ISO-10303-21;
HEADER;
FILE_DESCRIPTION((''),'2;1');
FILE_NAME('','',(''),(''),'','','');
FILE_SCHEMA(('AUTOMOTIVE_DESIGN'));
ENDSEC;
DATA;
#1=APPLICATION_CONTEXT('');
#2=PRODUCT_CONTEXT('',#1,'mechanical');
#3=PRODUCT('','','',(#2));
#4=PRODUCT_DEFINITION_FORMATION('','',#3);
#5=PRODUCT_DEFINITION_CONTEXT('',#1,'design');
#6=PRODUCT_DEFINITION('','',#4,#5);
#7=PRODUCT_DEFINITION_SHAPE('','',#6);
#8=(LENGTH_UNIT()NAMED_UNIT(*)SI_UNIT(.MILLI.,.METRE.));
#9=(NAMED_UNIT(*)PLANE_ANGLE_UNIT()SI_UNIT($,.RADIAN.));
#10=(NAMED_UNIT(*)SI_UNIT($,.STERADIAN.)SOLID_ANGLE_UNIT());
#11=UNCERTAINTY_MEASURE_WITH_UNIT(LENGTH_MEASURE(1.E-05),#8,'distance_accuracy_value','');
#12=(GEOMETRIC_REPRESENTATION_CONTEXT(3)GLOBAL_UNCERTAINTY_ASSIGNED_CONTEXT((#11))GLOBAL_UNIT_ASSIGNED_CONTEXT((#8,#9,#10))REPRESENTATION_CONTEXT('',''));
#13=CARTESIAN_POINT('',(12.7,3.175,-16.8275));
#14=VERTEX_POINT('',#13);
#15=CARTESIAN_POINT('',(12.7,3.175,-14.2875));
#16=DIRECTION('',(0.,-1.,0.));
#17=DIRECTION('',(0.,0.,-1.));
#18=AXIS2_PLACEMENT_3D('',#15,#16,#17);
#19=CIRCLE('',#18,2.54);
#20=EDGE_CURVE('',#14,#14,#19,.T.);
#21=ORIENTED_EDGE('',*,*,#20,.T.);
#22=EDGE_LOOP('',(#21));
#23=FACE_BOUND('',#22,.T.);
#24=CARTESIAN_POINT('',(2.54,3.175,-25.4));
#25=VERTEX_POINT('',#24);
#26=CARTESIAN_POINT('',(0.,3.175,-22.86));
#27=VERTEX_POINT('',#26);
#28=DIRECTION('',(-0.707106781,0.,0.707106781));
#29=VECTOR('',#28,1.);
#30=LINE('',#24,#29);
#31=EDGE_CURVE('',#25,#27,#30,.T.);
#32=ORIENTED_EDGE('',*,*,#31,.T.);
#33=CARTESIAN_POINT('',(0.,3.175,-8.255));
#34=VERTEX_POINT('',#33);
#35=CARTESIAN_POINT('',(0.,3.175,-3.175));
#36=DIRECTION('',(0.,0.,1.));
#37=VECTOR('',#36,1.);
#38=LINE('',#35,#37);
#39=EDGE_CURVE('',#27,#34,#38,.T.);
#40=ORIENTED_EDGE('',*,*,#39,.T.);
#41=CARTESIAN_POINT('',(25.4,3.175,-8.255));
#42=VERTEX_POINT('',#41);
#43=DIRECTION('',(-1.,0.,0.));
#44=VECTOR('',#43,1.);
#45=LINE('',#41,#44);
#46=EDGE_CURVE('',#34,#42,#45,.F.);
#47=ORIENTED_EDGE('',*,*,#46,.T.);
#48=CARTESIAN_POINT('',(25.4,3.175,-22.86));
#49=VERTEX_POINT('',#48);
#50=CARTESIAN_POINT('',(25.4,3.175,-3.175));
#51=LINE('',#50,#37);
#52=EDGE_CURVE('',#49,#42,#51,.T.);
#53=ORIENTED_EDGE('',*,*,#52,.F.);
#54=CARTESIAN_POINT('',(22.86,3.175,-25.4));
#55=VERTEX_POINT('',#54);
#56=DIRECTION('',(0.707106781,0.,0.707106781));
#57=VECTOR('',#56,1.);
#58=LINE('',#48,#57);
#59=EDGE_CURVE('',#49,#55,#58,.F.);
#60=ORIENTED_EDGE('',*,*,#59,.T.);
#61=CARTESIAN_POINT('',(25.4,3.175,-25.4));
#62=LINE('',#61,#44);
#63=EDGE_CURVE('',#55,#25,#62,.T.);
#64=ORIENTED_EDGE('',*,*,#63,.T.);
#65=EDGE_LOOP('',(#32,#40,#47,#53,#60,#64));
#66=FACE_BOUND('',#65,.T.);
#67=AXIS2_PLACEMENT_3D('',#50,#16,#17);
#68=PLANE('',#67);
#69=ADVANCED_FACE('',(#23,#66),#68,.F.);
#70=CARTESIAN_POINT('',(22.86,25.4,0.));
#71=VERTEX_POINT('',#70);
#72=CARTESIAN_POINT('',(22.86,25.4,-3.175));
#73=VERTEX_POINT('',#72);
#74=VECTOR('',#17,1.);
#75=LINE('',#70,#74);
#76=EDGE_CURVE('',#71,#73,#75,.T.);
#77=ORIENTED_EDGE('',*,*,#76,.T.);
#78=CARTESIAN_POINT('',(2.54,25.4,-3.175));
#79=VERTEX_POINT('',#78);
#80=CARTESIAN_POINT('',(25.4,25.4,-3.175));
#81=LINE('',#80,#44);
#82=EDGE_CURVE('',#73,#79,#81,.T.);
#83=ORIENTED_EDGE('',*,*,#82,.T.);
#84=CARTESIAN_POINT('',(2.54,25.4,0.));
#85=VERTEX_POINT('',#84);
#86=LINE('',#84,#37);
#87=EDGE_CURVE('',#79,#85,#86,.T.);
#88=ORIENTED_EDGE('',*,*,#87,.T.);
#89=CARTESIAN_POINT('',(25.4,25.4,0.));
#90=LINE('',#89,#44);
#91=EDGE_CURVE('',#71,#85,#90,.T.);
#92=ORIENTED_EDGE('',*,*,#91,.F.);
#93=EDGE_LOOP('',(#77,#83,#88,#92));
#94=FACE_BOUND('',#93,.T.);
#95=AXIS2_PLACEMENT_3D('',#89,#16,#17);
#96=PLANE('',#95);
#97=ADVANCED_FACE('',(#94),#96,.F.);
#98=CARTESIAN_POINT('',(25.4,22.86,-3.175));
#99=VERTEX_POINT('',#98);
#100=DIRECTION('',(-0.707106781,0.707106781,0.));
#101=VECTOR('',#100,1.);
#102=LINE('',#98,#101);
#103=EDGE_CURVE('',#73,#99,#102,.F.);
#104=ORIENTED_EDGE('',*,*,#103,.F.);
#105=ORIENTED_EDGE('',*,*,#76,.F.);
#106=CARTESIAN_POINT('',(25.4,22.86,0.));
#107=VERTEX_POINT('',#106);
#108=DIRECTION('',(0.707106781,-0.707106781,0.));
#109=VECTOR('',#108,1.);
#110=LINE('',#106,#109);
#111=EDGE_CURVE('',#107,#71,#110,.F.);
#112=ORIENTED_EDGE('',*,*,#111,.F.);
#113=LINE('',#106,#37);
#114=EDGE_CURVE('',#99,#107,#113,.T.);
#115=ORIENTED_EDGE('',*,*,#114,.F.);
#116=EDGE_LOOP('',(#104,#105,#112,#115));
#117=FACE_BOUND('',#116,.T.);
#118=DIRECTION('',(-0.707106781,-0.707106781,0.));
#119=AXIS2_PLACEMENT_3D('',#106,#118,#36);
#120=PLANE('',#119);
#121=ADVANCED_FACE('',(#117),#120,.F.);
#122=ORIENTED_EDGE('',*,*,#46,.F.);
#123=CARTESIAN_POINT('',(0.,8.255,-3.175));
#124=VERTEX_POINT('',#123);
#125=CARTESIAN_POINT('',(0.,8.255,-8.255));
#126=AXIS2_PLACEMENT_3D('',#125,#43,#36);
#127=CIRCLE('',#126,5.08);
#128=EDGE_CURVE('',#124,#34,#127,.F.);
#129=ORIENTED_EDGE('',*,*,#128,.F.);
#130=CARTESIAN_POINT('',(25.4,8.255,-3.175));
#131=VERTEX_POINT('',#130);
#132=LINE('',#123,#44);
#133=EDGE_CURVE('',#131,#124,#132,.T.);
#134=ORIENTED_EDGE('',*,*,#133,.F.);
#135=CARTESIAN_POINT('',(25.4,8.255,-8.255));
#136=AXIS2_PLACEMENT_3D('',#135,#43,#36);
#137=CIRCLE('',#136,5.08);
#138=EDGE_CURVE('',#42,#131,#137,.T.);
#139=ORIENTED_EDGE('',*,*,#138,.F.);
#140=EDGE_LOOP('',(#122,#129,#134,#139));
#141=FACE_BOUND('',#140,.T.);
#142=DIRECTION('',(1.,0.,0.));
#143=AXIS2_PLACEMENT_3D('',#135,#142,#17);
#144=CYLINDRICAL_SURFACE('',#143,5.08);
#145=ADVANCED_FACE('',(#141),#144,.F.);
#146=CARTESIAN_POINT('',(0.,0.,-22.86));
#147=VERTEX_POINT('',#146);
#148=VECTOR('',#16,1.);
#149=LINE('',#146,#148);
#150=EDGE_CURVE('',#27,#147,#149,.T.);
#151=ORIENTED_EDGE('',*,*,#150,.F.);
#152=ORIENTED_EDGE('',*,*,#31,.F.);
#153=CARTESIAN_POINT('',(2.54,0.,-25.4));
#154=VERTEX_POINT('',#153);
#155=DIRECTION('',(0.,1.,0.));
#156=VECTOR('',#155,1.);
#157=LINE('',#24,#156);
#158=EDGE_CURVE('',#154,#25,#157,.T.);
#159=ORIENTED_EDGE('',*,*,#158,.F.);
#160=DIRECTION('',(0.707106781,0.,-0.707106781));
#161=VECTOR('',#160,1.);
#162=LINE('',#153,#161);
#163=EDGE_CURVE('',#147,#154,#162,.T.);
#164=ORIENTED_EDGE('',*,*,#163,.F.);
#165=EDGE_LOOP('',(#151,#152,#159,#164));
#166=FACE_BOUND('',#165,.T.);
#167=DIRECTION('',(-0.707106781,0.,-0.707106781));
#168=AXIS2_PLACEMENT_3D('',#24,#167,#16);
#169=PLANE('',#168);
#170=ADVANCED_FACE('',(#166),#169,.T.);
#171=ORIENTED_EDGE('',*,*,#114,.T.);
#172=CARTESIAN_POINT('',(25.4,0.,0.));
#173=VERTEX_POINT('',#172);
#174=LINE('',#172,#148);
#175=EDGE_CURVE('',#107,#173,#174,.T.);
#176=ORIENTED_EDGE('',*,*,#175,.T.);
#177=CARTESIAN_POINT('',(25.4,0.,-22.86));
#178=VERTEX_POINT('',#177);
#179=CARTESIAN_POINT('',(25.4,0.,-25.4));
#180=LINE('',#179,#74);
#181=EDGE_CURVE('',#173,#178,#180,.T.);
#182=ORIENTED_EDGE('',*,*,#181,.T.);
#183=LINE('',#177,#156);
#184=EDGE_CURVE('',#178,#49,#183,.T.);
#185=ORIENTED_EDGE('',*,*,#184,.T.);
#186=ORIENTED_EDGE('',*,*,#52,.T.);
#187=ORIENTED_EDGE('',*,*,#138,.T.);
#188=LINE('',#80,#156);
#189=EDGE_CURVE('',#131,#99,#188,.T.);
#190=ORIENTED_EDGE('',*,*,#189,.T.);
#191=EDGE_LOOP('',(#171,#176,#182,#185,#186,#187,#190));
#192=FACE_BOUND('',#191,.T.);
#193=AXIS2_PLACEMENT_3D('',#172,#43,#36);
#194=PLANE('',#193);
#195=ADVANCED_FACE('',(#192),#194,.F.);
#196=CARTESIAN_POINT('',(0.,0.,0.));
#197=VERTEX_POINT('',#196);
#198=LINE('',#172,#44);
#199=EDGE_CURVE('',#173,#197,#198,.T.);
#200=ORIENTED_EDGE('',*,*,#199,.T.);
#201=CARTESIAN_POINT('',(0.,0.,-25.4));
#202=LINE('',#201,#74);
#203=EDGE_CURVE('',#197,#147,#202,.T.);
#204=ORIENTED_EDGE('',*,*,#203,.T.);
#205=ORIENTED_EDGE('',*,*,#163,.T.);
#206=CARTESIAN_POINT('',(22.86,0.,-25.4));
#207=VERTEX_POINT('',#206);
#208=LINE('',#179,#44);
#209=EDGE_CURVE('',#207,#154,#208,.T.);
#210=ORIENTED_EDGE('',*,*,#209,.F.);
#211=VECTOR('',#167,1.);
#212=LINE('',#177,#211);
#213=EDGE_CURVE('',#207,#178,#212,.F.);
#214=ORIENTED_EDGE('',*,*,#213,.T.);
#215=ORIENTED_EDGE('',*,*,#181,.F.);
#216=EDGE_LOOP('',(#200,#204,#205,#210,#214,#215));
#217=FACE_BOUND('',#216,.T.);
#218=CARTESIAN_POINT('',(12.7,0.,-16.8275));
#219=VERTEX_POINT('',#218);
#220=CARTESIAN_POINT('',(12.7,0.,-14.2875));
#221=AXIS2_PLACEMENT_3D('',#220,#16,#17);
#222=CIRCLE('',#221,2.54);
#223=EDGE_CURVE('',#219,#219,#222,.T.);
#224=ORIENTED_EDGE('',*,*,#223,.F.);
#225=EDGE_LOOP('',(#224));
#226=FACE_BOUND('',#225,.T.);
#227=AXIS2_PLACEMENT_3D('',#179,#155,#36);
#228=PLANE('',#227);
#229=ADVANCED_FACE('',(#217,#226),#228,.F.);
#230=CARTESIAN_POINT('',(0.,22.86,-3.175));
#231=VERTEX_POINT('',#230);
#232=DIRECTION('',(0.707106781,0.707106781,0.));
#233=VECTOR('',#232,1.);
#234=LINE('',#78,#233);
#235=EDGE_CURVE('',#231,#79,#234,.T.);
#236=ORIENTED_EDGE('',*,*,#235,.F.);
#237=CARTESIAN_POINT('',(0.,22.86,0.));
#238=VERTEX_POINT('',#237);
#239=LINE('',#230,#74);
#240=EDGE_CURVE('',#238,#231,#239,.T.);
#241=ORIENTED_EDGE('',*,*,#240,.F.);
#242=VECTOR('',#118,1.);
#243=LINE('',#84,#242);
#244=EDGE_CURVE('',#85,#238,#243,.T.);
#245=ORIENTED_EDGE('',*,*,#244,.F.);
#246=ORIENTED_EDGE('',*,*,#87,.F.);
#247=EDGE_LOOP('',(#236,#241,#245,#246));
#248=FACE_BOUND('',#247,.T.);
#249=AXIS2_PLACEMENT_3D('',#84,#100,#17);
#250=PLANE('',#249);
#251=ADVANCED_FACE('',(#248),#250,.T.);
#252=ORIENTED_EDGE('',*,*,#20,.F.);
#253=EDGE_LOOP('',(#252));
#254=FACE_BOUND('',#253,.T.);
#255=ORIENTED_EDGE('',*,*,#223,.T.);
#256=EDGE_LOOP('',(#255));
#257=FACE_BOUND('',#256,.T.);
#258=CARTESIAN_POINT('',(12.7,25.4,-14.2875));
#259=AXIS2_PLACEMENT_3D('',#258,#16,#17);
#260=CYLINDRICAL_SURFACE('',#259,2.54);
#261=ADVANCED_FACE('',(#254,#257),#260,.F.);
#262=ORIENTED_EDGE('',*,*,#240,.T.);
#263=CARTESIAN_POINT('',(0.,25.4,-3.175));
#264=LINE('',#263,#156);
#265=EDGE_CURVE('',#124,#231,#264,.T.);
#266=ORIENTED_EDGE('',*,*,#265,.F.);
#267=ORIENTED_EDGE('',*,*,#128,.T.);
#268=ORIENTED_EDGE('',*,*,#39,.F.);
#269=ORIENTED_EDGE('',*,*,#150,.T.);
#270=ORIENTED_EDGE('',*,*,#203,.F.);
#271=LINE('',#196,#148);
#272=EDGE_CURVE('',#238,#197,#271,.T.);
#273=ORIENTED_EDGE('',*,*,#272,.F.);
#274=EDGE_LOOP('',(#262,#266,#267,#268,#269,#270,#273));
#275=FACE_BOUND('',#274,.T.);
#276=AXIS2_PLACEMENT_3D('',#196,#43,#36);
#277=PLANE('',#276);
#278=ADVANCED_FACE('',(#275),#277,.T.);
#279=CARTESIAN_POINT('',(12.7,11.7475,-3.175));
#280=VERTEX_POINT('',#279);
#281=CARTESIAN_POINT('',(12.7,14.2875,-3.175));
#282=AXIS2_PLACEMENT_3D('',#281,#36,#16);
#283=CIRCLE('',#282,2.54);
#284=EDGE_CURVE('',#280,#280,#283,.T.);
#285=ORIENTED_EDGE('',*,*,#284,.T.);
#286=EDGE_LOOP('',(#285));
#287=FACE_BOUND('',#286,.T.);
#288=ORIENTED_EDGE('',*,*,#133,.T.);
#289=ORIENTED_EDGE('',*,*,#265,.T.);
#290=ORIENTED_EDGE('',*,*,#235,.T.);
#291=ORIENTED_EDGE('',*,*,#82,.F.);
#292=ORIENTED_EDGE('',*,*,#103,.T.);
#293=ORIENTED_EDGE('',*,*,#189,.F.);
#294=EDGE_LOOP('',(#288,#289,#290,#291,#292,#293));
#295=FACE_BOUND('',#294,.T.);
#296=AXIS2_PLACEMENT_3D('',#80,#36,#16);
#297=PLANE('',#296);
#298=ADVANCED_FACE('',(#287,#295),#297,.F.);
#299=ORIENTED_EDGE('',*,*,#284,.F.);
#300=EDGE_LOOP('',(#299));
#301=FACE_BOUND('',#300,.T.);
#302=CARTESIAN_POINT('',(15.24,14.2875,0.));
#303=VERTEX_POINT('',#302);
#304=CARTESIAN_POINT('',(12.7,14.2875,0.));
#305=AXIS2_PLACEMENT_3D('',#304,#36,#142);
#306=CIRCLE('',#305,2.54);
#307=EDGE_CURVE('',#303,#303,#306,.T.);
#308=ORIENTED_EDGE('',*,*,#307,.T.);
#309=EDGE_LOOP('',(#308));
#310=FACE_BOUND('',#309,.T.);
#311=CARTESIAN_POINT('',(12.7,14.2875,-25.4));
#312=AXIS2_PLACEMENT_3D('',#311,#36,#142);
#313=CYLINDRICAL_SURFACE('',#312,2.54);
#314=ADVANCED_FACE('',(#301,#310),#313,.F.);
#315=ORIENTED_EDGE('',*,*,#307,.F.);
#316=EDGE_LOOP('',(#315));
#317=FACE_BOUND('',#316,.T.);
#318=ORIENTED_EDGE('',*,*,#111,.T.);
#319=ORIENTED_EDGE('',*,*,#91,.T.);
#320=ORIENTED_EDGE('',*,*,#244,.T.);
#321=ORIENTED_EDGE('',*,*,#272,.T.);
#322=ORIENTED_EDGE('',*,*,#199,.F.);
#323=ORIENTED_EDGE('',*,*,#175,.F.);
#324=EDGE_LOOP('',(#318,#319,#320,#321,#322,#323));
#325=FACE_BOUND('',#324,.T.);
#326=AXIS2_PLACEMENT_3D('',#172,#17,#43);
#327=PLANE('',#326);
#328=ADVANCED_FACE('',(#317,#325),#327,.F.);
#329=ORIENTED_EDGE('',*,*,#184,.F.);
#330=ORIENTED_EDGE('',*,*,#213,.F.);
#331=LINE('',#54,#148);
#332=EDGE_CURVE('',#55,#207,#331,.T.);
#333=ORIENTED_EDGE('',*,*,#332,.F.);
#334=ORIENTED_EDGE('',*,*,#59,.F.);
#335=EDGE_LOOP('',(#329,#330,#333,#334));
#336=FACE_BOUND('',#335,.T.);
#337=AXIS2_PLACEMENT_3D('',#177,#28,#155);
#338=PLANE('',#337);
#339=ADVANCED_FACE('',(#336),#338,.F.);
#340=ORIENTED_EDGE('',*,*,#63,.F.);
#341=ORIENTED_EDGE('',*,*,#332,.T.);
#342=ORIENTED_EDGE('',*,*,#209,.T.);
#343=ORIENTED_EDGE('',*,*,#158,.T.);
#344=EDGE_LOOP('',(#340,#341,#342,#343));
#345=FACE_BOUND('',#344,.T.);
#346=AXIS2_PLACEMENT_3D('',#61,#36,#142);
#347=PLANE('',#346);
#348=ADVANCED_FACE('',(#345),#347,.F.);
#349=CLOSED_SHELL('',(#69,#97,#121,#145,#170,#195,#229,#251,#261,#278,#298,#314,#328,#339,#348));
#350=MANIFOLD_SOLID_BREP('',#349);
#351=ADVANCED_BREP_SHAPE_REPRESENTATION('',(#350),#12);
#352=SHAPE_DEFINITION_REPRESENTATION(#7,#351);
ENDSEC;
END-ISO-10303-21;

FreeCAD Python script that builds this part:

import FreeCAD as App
import Part
import Sketcher
from FreeCAD import Vector
Q = App.Units.Quantity


def edges_at(feature, points):
    """Names of the edges that pass closest to the given points."""
    edges = feature.Shape.Edges
    near = lambda p: min(range(len(edges)), key=lambda i: edges[i].distToShape(Part.Vertex(*p))[0])
    return sorted({f"Edge{near(p) + 1}" for p in points})

doc = App.newDocument("Part")
params = doc.addObject("Spreadsheet::Sheet", "Params")
for row, (alias, value) in enumerate([
    ("sketch1_width", "1 in"),
    ("sketch1_width2", "0.125 in"),
    ("pad1_length", "1 in"),
    ("sketch2_diameter", "0.2 in"),
    ("sketch3_diameter", "0.2 in"),
    ("fillet_radius", "0.2 in"),
    ("chamfer_size", "0.1 in"),
], start=1):
    params.set(f"A{row}", alias)
    params.set(f"B{row}", "=" + value)
    params.setAlias(f"B{row}", alias)

body = doc.addObject("PartDesign::Body", "Body")

sketch1 = body.newObject("Sketcher::SketchObject", "Sketch")
sketch1.AttachmentSupport = (doc.getObject("YZ_Plane"), [""])
sketch1.MapMode = "FlatFace"
sketch1.addGeometry([
    Part.LineSegment(Vector(25.4, 0, 0), Vector(0, 0, 0)),
    Part.LineSegment(Vector(0, 0, 0), Vector(0, -25.4, 0)),
    Part.LineSegment(Vector(0, -25.4, 0), Vector(3.175, -25.4, 0)),
    Part.LineSegment(Vector(3.175, -25.4, 0), Vector(3.175, -3.175, 0)),
    Part.LineSegment(Vector(3.175, -3.175, 0), Vector(25.4, -3.175, 0)),
    Part.LineSegment(Vector(25.4, -3.175, 0), Vector(25.4, 0, 0)),
], False)
sketch1.addConstraint([
    Sketcher.Constraint("Coincident", 0, 2, 1, 1),
    Sketcher.Constraint("Coincident", 1, 2, 2, 1),
    Sketcher.Constraint("Coincident", 2, 2, 3, 1),
    Sketcher.Constraint("Coincident", 3, 2, 4, 1),
    Sketcher.Constraint("Coincident", 4, 2, 5, 1),
    Sketcher.Constraint("Coincident", 5, 2, 0, 1),
    Sketcher.Constraint("Horizontal", 0),
    Sketcher.Constraint("Vertical", 1),
    Sketcher.Constraint("Horizontal", 2),
    Sketcher.Constraint("Vertical", 3),
    Sketcher.Constraint("Horizontal", 4),
    Sketcher.Constraint("Vertical", 5),
    Sketcher.Constraint("Coincident", 0, 2, -1, 1),
    Sketcher.Constraint("Equal", 0, 1),
    Sketcher.Constraint("Equal", 4, 3),
    Sketcher.Constraint("DistanceX", 0, 2, 0, 1, Q("1 in")),
    Sketcher.Constraint("DistanceX", 2, 1, 2, 2, Q("0.125 in")),
])
sketch1.setExpression("Constraints[15]", "Params.sketch1_width")
sketch1.setExpression("Constraints[16]", "Params.sketch1_width2")
pad1 = body.newObject("PartDesign::Pad", "Pad")
pad1.Profile = sketch1
pad1.setExpression("Length", "Params.pad1_length")

sketch2 = body.newObject("Sketcher::SketchObject", "Sketch001")
sketch2.AttachmentSupport = (doc.getObject("XY_Plane"), [""])
sketch2.MapMode = "FlatFace"
sketch2.addGeometry(Part.Circle(Vector(12.7, 14.2875, 0), Vector(0, 0, 1), 2.54), False)
sketch2.addConstraint([
    Sketcher.Constraint("Diameter", 0, Q("0.2 in")),
    Sketcher.Constraint("DistanceX", -1, 1, 0, 3, Q("0.5 in")),
    Sketcher.Constraint("DistanceY", -1, 1, 0, 3, Q("0.5625 in")),
])
sketch2.setExpression("Constraints[0]", "Params.sketch2_diameter")
pocket1 = body.newObject("PartDesign::Pocket", "Pocket")
pocket1.Profile = sketch2
pocket1.Type = "ThroughAll"

sketch3 = body.newObject("Sketcher::SketchObject", "Sketch002")
sketch3.AttachmentSupport = (doc.getObject("XZ_Plane"), [""])
sketch3.MapMode = "FlatFace"
sketch3.addGeometry(Part.Circle(Vector(12.7, -14.2875, 0), Vector(0, 0, 1), 2.54), False)
sketch3.addConstraint([
    Sketcher.Constraint("Diameter", 0, Q("0.2 in")),
    Sketcher.Constraint("DistanceX", -1, 1, 0, 3, Q("0.5 in")),
    Sketcher.Constraint("DistanceY", 0, 3, -1, 1, Q("0.5625 in")),
])
sketch3.setExpression("Constraints[0]", "Params.sketch3_diameter")
pocket2 = body.newObject("PartDesign::Pocket", "Pocket001")
pocket2.Profile = sketch3
pocket2.Type = "ThroughAll"
doc.recompute()

fillet = body.newObject("PartDesign::Fillet", "Fillet")
fillet.Base = (pocket2, edges_at(pocket2, [(12.7, 3.175, -3.175)]))
fillet.setExpression("Radius", "Params.fillet_radius")
doc.recompute()

chamfer = body.newObject("PartDesign::Chamfer", "Chamfer")
chamfer.Base = (fillet, edges_at(fillet, [
    (25.4, 25.4, -1.587),
    (0, 25.4, -1.587),
    (0, 1.587, -25.4),
    (25.4, 1.587, -25.4),
]))
chamfer.setExpression("Size", "Params.chamfer_size")

doc.recompute()
